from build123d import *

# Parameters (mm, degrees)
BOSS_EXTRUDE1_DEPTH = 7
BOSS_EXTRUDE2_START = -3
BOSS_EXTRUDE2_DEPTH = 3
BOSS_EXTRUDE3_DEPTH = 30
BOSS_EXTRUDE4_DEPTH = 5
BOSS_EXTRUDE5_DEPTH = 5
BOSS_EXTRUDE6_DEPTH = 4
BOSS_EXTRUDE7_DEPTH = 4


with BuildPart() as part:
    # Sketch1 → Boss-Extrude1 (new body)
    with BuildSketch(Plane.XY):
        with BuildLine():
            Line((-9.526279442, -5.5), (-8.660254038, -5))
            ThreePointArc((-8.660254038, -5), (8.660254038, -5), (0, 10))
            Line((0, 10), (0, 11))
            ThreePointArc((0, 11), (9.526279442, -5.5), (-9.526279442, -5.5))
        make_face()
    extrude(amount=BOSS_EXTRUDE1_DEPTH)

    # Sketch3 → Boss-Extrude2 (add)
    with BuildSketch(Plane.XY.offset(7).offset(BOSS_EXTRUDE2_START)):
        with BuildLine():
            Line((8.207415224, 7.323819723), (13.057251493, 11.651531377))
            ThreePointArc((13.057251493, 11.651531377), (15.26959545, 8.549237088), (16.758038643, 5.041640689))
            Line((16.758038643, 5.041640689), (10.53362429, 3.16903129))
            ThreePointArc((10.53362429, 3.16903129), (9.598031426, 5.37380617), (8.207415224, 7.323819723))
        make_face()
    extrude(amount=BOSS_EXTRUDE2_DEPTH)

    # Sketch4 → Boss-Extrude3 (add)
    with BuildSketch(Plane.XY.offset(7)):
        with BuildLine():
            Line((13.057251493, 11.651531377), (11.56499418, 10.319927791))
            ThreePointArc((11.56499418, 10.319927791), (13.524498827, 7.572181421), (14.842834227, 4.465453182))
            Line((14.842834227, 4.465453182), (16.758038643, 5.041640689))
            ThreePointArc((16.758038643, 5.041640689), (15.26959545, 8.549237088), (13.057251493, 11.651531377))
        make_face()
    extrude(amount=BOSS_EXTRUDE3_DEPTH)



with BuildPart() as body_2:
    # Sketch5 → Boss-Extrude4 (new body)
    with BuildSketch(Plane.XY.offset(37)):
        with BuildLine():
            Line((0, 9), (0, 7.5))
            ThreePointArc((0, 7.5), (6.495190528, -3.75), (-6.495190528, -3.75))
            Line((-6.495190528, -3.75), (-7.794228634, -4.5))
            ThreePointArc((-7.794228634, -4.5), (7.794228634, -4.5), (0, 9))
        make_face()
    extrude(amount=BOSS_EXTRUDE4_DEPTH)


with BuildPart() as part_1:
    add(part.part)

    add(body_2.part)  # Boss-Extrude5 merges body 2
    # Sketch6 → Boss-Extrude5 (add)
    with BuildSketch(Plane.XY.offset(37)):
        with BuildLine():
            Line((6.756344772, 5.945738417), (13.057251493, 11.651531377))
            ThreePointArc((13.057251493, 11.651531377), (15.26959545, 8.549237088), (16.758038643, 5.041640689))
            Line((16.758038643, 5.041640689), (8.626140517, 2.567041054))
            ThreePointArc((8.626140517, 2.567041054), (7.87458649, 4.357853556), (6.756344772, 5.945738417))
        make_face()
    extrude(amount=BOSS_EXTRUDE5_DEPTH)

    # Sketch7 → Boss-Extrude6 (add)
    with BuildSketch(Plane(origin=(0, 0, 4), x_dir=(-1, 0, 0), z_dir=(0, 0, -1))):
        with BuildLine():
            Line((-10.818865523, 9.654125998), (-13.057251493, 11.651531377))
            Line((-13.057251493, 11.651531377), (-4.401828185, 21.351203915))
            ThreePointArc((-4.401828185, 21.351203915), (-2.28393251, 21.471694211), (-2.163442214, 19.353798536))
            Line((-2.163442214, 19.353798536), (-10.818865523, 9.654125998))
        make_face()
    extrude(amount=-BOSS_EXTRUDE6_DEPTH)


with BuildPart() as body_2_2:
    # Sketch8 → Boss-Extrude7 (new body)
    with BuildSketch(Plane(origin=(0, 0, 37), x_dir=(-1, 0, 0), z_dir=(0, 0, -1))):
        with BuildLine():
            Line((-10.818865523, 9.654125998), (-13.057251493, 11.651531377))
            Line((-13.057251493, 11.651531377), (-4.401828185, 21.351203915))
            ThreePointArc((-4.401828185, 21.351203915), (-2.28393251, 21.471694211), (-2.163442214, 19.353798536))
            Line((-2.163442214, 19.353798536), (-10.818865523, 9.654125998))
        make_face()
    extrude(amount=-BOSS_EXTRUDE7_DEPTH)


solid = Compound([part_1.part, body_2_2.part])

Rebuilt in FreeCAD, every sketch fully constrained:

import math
import FreeCAD as App
import Part
import Sketcher
from FreeCAD import Vector
Q = App.Units.Quantity

doc = App.newDocument("Part")
body = doc.addObject("PartDesign::Body", "Body")

sketch1 = doc.addObject("Sketcher::SketchObject", "Sketch")
body.addObject(sketch1)
sketch1.AttachmentSupport = (doc.XY_Plane, [""])
sketch1.MapMode = "FlatFace"
sketch1.addGeometry([
    Part.LineSegment(Vector(-8.7, -5, 0), Vector(-9.5, -5.5, 0)),
    Part.ArcOfCircle(Part.Circle(Vector(0, 0, 0), Vector(0, 0, 1), 11), math.radians(-150), math.radians(90)),
    Part.LineSegment(Vector(0, 11, 0), Vector(0, 10, 0)),
    Part.ArcOfCircle(Part.Circle(Vector(0, 0, 0), Vector(0, 0, 1), 10), math.radians(-150), math.radians(90)),
], False)
sketch1.addConstraint([
    Sketcher.Constraint("Coincident", 0, 2, 1, 1),
    Sketcher.Constraint("Coincident", 1, 2, 2, 1),
    Sketcher.Constraint("Coincident", 2, 2, 3, 2),
    Sketcher.Constraint("Coincident", 3, 1, 0, 1),
    Sketcher.Constraint("Vertical", 2),
    Sketcher.Constraint("Coincident", 1, 3, -1, 1),
    Sketcher.Constraint("Coincident", 3, 3, -1, 1),
    Sketcher.Constraint("PointOnObject", 1, 2, -2),
    Sketcher.Constraint("Radius", 1, Q("11 mm")),
    Sketcher.Constraint("Radius", 3, Q("10 mm")),
    Sketcher.Constraint("Angle", 0, Q("-150 deg")),
    Sketcher.Constraint("DistanceY", 3, 1, -1, 1, Q("5 mm")),
])
pad1 = doc.addObject("PartDesign::Pad", "Pad")
body.addObject(pad1)
pad1.Profile = sketch1
pad1.Length = 7

sketch2 = doc.addObject("Sketcher::SketchObject", "Sketch001")
body.addObject(sketch2)
sketch2.AttachmentSupport = (doc.XY_Plane, [""])
sketch2.MapMode = "FlatFace"
sketch2.AttachmentOffset = App.Placement(Vector(0, 0, 4), App.Rotation())
sketch2.addGeometry([
    Part.LineSegment(Vector(13.1, 11.7, 0), Vector(8.2, 7.3, 0)),
    Part.ArcOfCircle(Part.Circle(Vector(0, 0, 0), Vector(0, 0, 1), 11), math.radians(17), math.radians(42)),
    Part.LineSegment(Vector(10.5, 3.2, 0), Vector(16.8, 5, 0)),
    Part.ArcOfCircle(Part.Circle(Vector(0, 0, 0), Vector(0, 0, 1), 17.5), math.radians(17), math.radians(42)),
], False)
sketch2.addConstraint([
    Sketcher.Constraint("Coincident", 0, 2, 1, 2),
    Sketcher.Constraint("Coincident", 1, 1, 2, 1),
    Sketcher.Constraint("Coincident", 2, 2, 3, 1),
    Sketcher.Constraint("Coincident", 3, 2, 0, 1),
    Sketcher.Constraint("Coincident", 1, 3, -1, 1),
    Sketcher.Constraint("Coincident", 3, 3, -1, 1),
    Sketcher.Constraint("Radius", 1, Q("11 mm")),
    Sketcher.Constraint("Radius", 3, Q("17.5 mm")),
    Sketcher.Constraint("DistanceY", 1, 1, 3, 2, Q("8.4825 mm")),
    Sketcher.Constraint("DistanceY", -1, 1, 0, 2, Q("7.32382 mm")),
    Sketcher.Constraint("DistanceY", -1, 1, 1, 1, Q("3.169031 mm")),
    Sketcher.Constraint("DistanceX", -1, 1, 2, 2, Q("16.758039 mm")),
])
pad2 = doc.addObject("PartDesign::Pad", "Pad001")
body.addObject(pad2)
pad2.Profile = sketch2
pad2.Length = 3

sketch3 = doc.addObject("Sketcher::SketchObject", "Sketch002")
body.addObject(sketch3)
sketch3.AttachmentSupport = (doc.XY_Plane, [""])
sketch3.MapMode = "FlatFace"
sketch3.AttachmentOffset = App.Placement(Vector(0, 0, 7), App.Rotation())
sketch3.addGeometry([
    Part.LineSegment(Vector(13.1, 11.7, 0), Vector(11.6, 10.3, 0)),
    Part.ArcOfCircle(Part.Circle(Vector(0, 0, 0), Vector(0, 0, 1), 15.5), math.radians(17), math.radians(42)),
    Part.LineSegment(Vector(14.8, 4.5, 0), Vector(16.8, 5, 0)),
    Part.ArcOfCircle(Part.Circle(Vector(0, 0, 0), Vector(0, 0, 1), 17.5), math.radians(17), math.radians(42)),
], False)
sketch3.addConstraint([
    Sketcher.Constraint("Coincident", 0, 2, 1, 2),
    Sketcher.Constraint("Coincident", 1, 1, 2, 1),
    Sketcher.Constraint("Coincident", 2, 2, 3, 1),
    Sketcher.Constraint("Coincident", 3, 2, 0, 1),
    Sketcher.Constraint("Coincident", 1, 3, -1, 1),
    Sketcher.Constraint("Coincident", 3, 3, -1, 1),
    Sketcher.Constraint("Radius", 1, Q("15.5 mm")),
    Sketcher.Constraint("Radius", 3, Q("17.5 mm")),
    Sketcher.Constraint("DistanceX", -1, 1, 2, 2, Q("16.758039 mm")),
    Sketcher.Constraint("DistanceX", -1, 1, 3, 2, Q("13.057251 mm")),
    Sketcher.Constraint("DistanceX", 0, 2, 1, 1, Q("3.27784 mm")),
    Sketcher.Constraint("DistanceY", 1, 1, 3, 2, Q("7.186078 mm")),
])
pad3 = doc.addObject("PartDesign::Pad", "Pad002")
body.addObject(pad3)
pad3.Profile = sketch3
pad3.Length = 30
body2 = doc.addObject("PartDesign::Body", "Body001")

sketch4 = doc.addObject("Sketcher::SketchObject", "Sketch003")
body2.addObject(sketch4)
sketch4.AttachmentSupport = (doc.getObject("XY_Plane001"), [""])
sketch4.MapMode = "FlatFace"
sketch4.AttachmentOffset = App.Placement(Vector(0, 0, 37), App.Rotation())
sketch4.addGeometry([
    Part.LineSegment(Vector(0, 9, 0), Vector(0, 7.5, 0)),
    Part.ArcOfCircle(Part.Circle(Vector(0, 0, 0), Vector(0, 0, 1), 7.5), math.radians(-150), math.radians(90)),
    Part.LineSegment(Vector(-6.5, -3.8, 0), Vector(-7.8, -4.5, 0)),
    Part.ArcOfCircle(Part.Circle(Vector(0, 0, 0), Vector(0, 0, 1), 9), math.radians(-150), math.radians(90)),
], False)
sketch4.addConstraint([
    Sketcher.Constraint("Coincident", 0, 2, 1, 2),
    Sketcher.Constraint("Coincident", 1, 1, 2, 1),
    Sketcher.Constraint("Coincident", 2, 2, 3, 1),
    Sketcher.Constraint("Coincident", 3, 2, 0, 1),
    Sketcher.Constraint("Vertical", 0),
    Sketcher.Constraint("Coincident", 1, 3, -1, 1),
    Sketcher.Constraint("Coincident", 3, 3, -1, 1),
    Sketcher.Constraint("PointOnObject", 0, 2, -2),
    Sketcher.Constraint("Radius", 3, Q("9 mm")),
    Sketcher.Constraint("Radius", 1, Q("7.5 mm")),
    Sketcher.Constraint("Angle", 2, Q("-150 deg")),
    Sketcher.Constraint("DistanceY", 2, 2, 0, 2, Q("12 mm")),
])
pad4 = doc.addObject("PartDesign::Pad", "Pad003")
body2.addObject(pad4)
pad4.Profile = sketch4
pad4.Length = 5
body.AllowCompound = True
doc.recompute()

boolean = doc.addObject("PartDesign::Boolean", "Boolean")
body.addObject(boolean)
boolean.Type = "Fuse"
boolean.addObjects([body2])

sketch5 = doc.addObject("Sketcher::SketchObject", "Sketch004")
body.addObject(sketch5)
sketch5.AttachmentSupport = (doc.XY_Plane, [""])
sketch5.MapMode = "FlatFace"
sketch5.AttachmentOffset = App.Placement(Vector(0, 0, 37), App.Rotation())
sketch5.addGeometry([
    Part.LineSegment(Vector(13.1, 11.7, 0), Vector(6.8, 5.9, 0)),
    Part.ArcOfCircle(Part.Circle(Vector(0, 0, 0), Vector(0, 0, 1), 9), math.radians(17), math.radians(41)),
    Part.LineSegment(Vector(8.6, 2.6, 0), Vector(16.8, 5, 0)),
    Part.ArcOfCircle(Part.Circle(Vector(0, 0, 0), Vector(0, 0, 1), 17.5), math.radians(17), math.radians(42)),
], False)
sketch5.addConstraint([
    Sketcher.Constraint("Coincident", 0, 2, 1, 2),
    Sketcher.Constraint("Coincident", 1, 1, 2, 1),
    Sketcher.Constraint("Coincident", 2, 2, 3, 1),
    Sketcher.Constraint("Coincident", 3, 2, 0, 1),
    Sketcher.Constraint("Coincident", 1, 3, -1, 1),
    Sketcher.Constraint("Coincident", 3, 3, -1, 1),
    Sketcher.Constraint("Radius", 1, Q("9 mm")),
    Sketcher.Constraint("Radius", 3, Q("17.5 mm")),
    Sketcher.Constraint("DistanceX", 1, 1, 2, 2, Q("8.131898 mm")),
    Sketcher.Constraint("Distance", 0, Q("8.500441 mm")),
    Sketcher.Constraint("DistanceY", -1, 1, 0, 2, Q("5.945738 mm")),
    Sketcher.Constraint("DistanceX", -1, 1, 1, 1, Q("8.626141 mm")),
])
pad5 = doc.addObject("PartDesign::Pad", "Pad004")
body.addObject(pad5)
pad5.Profile = sketch5
pad5.Length = 5

sketch6 = doc.addObject("Sketcher::SketchObject", "Sketch005")
body.addObject(sketch6)
sketch6.AttachmentSupport = (doc.XY_Plane, [""])
sketch6.MapMode = "FlatFace"
sketch6.AttachmentOffset = App.Placement(Vector(0, 0, 4), App.Rotation())
sketch6.addGeometry([
    Part.LineSegment(Vector(13.1, 11.7, 0), Vector(10.8, 9.7, 0)),
    Part.LineSegment(Vector(10.8, 9.7, 0), Vector(2.2, 19.4, 0)),
    Part.ArcOfCircle(Part.Circle(Vector(3.3, 20.4, 0), Vector(0, 0, 1), 1.5), math.radians(42), math.radians(222)),
    Part.LineSegment(Vector(4.4, 21.4, 0), Vector(13.1, 11.7, 0)),
], False)
sketch6.addConstraint([
    Sketcher.Constraint("Coincident", 0, 2, 1, 1),
    Sketcher.Constraint("Tangent", 1, 2, 2, 2),
    Sketcher.Constraint("Tangent", 2, 1, 3, 1),
    Sketcher.Constraint("Coincident", 3, 2, 0, 1),
    Sketcher.Constraint("Perpendicular", 0, 1),
    Sketcher.Constraint("Parallel", 1, 3),
    Sketcher.Constraint("Radius", 2, Q("1.5 mm")),
    Sketcher.Constraint("Distance", 1, Q("13 mm")),
    Sketcher.Constraint("DistanceY", -1, 1, 2, 3, Q("20.352501 mm")),
    Sketcher.Constraint("DistanceY", -1, 1, 1, 2, Q("19.353799 mm")),
    Sketcher.Constraint("DistanceX", -1, 1, 2, 1, Q("4.401828 mm")),
])
pad6 = doc.addObject("PartDesign::Pad", "Pad005")
body.addObject(pad6)
pad6.Profile = sketch6
pad6.Length = 4
body3 = doc.addObject("PartDesign::Body", "Body002")

sketch7 = doc.addObject("Sketcher::SketchObject", "Sketch006")
body3.addObject(sketch7)
sketch7.AttachmentSupport = (doc.getObject("XY_Plane002"), [""])
sketch7.MapMode = "FlatFace"
sketch7.AttachmentOffset = App.Placement(Vector(0, 0, 37), App.Rotation())
sketch7.addGeometry([
    Part.LineSegment(Vector(13.1, 11.7, 0), Vector(10.8, 9.7, 0)),
    Part.LineSegment(Vector(10.8, 9.7, 0), Vector(2.2, 19.4, 0)),
    Part.ArcOfCircle(Part.Circle(Vector(3.3, 20.4, 0), Vector(0, 0, 1), 1.5), math.radians(42), math.radians(222)),
    Part.LineSegment(Vector(4.4, 21.4, 0), Vector(13.1, 11.7, 0)),
], False)
sketch7.addConstraint([
    Sketcher.Constraint("Coincident", 0, 2, 1, 1),
    Sketcher.Constraint("Tangent", 1, 2, 2, 2),
    Sketcher.Constraint("Tangent", 2, 1, 3, 1),
    Sketcher.Constraint("Coincident", 3, 2, 0, 1),
    Sketcher.Constraint("Perpendicular", 0, 1),
    Sketcher.Constraint("Parallel", 1, 3),
    Sketcher.Constraint("Radius", 2, Q("1.5 mm")),
    Sketcher.Constraint("Distance", 1, Q("13 mm")),
    Sketcher.Constraint("DistanceY", -1, 1, 2, 3, Q("20.352501 mm")),
    Sketcher.Constraint("DistanceY", -1, 1, 1, 2, Q("19.353799 mm")),
    Sketcher.Constraint("DistanceX", -1, 1, 2, 1, Q("4.401828 mm")),
])
pad7 = doc.addObject("PartDesign::Pad", "Pad006")
body3.addObject(pad7)
pad7.Profile = sketch7
pad7.Length = 4

doc.recompute()
